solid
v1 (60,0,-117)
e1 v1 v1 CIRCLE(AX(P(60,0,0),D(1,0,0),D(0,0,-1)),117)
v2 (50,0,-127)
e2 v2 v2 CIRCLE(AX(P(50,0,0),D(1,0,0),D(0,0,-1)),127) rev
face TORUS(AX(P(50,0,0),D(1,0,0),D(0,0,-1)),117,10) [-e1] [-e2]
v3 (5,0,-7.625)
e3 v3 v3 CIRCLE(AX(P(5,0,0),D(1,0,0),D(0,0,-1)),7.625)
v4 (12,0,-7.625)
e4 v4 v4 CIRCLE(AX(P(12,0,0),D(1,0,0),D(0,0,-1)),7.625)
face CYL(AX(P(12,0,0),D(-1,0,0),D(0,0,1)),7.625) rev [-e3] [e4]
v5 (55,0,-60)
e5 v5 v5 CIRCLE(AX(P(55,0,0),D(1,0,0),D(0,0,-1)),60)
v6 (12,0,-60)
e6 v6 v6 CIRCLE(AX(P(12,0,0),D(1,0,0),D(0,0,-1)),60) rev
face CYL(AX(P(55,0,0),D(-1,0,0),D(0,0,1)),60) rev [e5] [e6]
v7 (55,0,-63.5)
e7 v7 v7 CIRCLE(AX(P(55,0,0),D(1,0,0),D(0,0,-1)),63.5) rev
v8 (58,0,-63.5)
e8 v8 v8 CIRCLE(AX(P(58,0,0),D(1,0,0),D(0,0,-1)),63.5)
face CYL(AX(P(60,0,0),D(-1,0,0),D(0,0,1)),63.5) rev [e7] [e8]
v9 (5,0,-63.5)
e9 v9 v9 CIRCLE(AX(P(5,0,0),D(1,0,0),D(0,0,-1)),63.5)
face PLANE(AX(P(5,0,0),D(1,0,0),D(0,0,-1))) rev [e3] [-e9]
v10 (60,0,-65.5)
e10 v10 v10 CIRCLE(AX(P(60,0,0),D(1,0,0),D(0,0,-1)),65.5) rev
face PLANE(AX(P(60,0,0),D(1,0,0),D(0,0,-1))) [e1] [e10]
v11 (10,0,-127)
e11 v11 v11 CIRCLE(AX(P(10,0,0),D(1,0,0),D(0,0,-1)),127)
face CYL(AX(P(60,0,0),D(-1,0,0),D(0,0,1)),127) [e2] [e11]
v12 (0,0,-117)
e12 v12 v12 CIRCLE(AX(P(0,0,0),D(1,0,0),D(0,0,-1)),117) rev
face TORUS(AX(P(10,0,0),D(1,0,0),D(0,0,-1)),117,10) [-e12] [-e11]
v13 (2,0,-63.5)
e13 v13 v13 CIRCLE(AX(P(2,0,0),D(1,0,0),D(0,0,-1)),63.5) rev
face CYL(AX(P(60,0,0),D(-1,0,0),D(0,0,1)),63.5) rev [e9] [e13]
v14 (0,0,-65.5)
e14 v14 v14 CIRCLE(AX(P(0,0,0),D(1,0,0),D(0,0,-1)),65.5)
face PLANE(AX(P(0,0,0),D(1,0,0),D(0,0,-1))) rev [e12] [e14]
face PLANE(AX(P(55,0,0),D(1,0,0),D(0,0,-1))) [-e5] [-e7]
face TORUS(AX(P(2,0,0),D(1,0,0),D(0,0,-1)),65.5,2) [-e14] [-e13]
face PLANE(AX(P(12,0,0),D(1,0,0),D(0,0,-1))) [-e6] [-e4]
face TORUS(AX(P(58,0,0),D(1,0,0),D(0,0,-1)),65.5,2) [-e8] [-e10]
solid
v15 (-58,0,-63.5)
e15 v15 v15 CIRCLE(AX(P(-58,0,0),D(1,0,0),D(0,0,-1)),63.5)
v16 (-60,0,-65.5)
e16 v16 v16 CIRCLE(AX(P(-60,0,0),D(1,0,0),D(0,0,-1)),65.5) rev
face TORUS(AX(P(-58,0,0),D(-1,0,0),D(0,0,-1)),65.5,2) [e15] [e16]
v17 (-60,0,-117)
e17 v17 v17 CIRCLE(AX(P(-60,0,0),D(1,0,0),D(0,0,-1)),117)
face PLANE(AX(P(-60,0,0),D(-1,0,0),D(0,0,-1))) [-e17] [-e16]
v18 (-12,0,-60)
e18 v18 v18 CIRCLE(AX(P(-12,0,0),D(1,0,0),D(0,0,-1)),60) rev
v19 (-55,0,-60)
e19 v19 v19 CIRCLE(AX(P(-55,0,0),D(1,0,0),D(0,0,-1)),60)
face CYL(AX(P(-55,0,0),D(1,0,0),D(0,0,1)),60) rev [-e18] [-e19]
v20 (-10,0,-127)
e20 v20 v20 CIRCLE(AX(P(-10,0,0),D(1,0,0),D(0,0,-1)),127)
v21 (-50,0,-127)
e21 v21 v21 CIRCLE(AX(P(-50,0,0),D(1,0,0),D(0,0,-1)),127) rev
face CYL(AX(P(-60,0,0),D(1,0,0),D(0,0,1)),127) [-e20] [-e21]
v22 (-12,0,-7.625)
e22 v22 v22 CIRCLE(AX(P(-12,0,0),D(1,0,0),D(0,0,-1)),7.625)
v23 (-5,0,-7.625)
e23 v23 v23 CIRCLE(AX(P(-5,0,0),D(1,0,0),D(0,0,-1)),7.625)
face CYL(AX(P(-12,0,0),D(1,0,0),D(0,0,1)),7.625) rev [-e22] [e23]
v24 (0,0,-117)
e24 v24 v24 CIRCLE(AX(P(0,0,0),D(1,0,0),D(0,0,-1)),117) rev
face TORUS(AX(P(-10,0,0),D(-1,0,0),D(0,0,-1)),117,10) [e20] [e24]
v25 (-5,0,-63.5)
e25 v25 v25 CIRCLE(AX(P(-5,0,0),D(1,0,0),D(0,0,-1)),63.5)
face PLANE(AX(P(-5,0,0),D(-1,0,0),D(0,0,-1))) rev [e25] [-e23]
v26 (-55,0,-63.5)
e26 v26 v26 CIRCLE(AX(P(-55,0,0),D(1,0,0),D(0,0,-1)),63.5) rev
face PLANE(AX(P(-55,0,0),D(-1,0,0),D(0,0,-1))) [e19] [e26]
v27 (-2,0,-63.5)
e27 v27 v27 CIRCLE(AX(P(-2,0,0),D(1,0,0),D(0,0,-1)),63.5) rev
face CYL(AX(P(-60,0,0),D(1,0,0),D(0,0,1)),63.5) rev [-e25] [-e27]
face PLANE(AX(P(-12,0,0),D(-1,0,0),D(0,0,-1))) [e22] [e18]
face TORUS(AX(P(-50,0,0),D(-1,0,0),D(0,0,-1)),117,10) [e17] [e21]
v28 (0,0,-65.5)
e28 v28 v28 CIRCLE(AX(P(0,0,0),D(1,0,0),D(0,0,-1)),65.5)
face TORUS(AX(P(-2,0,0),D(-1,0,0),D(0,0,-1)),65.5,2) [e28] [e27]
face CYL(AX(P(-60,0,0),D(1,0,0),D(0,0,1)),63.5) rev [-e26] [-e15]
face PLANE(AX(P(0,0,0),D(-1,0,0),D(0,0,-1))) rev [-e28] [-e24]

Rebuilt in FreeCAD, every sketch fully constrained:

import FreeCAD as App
import Part
import Sketcher
from FreeCAD import Vector


def edges_at(feature, points):
    """Names of the edges that pass closest to the given points."""
    edges = feature.Shape.Edges
    near = lambda p: min(range(len(edges)), key=lambda i: edges[i].distToShape(Part.Vertex(*p))[0])
    return sorted({f"Edge{near(p) + 1}" for p in points})

doc = App.newDocument("Part")
body = doc.addObject("PartDesign::Body", "Body")

# Sketch on YZ plane
sketch1 = body.newObject("Sketcher::SketchObject", "Sketch")
sketch1.AttachmentSupport = (doc.getObject("YZ_Plane"), [""])
sketch1.MapMode = "FlatFace"
sketch1.AttachmentOffset = App.Placement(Vector(0, 0, 5), App.Rotation())
sketch1.addGeometry([
    Part.Circle(Vector(0, 0, 0), Vector(0, 0, 1), 64),
    Part.Circle(Vector(0, 0, 0), Vector(0, 0, 1), 8),
], False)
sketch1.addConstraint([
    Sketcher.Constraint("Coincident", 0, 3, -1, 1),
    Sketcher.Constraint("Coincident", 1, 3, -1, 1),
    Sketcher.Constraint("Diameter", 0, 127.0),
    Sketcher.Constraint("Diameter", 1, 15.25),
])
pad1 = body.newObject("PartDesign::Pad", "Pad")
pad1.Profile = sketch1
pad1.Length = 7

# Sketch on YZ plane
sketch2 = body.newObject("Sketcher::SketchObject", "Sketch001")
sketch2.AttachmentSupport = (doc.getObject("YZ_Plane"), [""])
sketch2.MapMode = "FlatFace"
sketch2.AttachmentOffset = App.Placement(Vector(0, 0, 5), App.Rotation())
sketch2.addGeometry([
    Part.Circle(Vector(0, 0, 0), Vector(0, 0, 1), 64),
    Part.Circle(Vector(0, 0, 0), Vector(0, 0, 1), 60),
], False)
sketch2.addConstraint([
    Sketcher.Constraint("Coincident", 0, 3, -1, 1),
    Sketcher.Constraint("Coincident", 1, 3, -1, 1),
    Sketcher.Constraint("Diameter", 0, 127.0),
    Sketcher.Constraint("Diameter", 1, 120.0),
])
pad2 = body.newObject("PartDesign::Pad", "Pad001")
pad2.Profile = sketch2
pad2.Length = 50

# Sketch on YZ plane
sketch3 = body.newObject("Sketcher::SketchObject", "Sketch002")
sketch3.AttachmentSupport = (doc.getObject("YZ_Plane"), [""])
sketch3.MapMode = "FlatFace"
sketch3.addGeometry([
    Part.Circle(Vector(0, 0, 0), Vector(0, 0, 1), 127),
    Part.Circle(Vector(0, 0, 0), Vector(0, 0, 1), 64),
], False)
sketch3.addConstraint([
    Sketcher.Constraint("Coincident", 0, 3, -1, 1),
    Sketcher.Constraint("Coincident", 1, 3, -1, 1),
    Sketcher.Constraint("Diameter", 0, 254.0),
    Sketcher.Constraint("Diameter", 1, 127.0),
])
pad3 = body.newObject("PartDesign::Pad", "Pad002")
pad3.Profile = sketch3
pad3.Length = 60
doc.recompute()

fillet = body.newObject("PartDesign::Fillet", "Fillet")
fillet.Base = (pad3, edges_at(pad3, [(60, 0, 127), (0, 0, 127)]))
fillet.Radius = 10
doc.recompute()

fillet2 = body.newObject("PartDesign::Fillet", "Fillet001")
fillet2.Base = (fillet, edges_at(fillet, [(0, 0, 63.5), (60, 0, 63.5)]))
fillet2.Radius = 2
body2 = doc.addObject("PartDesign::Body", "Body001")
doc.recompute()

mirroring = doc.addObject("Part::Mirroring", "Mirroring")
mirroring.Source = body
mirroring.Base = Vector(0, 0, 0)
mirroring.Normal = Vector(1, 0, 0)
body2.BaseFeature = mirroring
doc.recompute()
mirroring.Visibility = False

doc.recompute()
